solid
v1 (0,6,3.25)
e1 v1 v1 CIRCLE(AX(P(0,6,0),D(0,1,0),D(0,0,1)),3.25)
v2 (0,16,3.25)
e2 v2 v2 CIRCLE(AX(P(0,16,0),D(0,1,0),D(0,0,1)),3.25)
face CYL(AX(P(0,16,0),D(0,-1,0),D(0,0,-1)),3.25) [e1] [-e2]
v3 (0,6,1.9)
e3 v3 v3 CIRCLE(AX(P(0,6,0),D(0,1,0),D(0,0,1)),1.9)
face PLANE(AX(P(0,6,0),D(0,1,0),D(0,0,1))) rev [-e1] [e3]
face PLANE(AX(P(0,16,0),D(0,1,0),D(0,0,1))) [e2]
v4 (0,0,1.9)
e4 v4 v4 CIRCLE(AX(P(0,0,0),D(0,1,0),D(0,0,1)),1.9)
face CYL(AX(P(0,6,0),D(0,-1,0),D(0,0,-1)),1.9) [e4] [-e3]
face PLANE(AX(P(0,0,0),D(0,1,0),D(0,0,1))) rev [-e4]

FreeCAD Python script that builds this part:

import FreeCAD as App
import Part
import Sketcher

V = App.Vector

doc = App.newDocument("Part")
params = doc.addObject("Spreadsheet::Sheet", "Params")
for row, (alias, value) in enumerate([
    ("sketch1_diameter", "3.8 mm"),
    ("pad1_length", "6 mm"),
    ("sketch2_diameter", "6.5 mm"),
    ("pad2_length", "10 mm"),
], start=1):
    params.set(f"A{row}", alias)
    params.set(f"B{row}", "=" + value)
    params.setAlias(f"B{row}", alias)

body = doc.addObject("PartDesign::Body", "Body")

# Sketch on XZ plane
sketch1 = doc.addObject("Sketcher::SketchObject", "Sketch")
body.addObject(sketch1)
sketch1.AttachmentSupport = (doc.XZ_Plane, [""])
sketch1.MapMode = "FlatFace"
sketch1.addGeometry(Part.Circle(V(0, 0, 0), V(0, 0, 1), 1.9), False)
sketch1.addConstraint([
    Sketcher.Constraint("Coincident", 0, 3, -1, 1),
    Sketcher.Constraint("Diameter", 0, 3.8),
])
sketch1.setExpression("Constraints[1]", "Params.sketch1_diameter")
pad1 = doc.addObject("PartDesign::Pad", "Pad")
body.addObject(pad1)
pad1.Profile = sketch1
pad1.setExpression("Length", "Params.pad1_length")
pad1.Reversed = True

# Sketch on XZ plane
sketch2 = doc.addObject("Sketcher::SketchObject", "Sketch001")
body.addObject(sketch2)
sketch2.AttachmentSupport = (doc.XZ_Plane, [""])
sketch2.MapMode = "FlatFace"
sketch2.AttachmentOffset = App.Placement(V(0, 0, -6), App.Rotation())
sketch2.addGeometry(Part.Circle(V(0, 0, 0), V(0, 0, 1), 3.2), False)
sketch2.addConstraint([
    Sketcher.Constraint("Coincident", 0, 3, -1, 1),
    Sketcher.Constraint("Diameter", 0, 6.5),
])
sketch2.setExpression("Constraints[1]", "Params.sketch2_diameter")
pad2 = doc.addObject("PartDesign::Pad", "Pad001")
body.addObject(pad2)
pad2.Profile = sketch2
pad2.setExpression("Length", "Params.pad2_length")
pad2.Reversed = True

doc.recompute()
